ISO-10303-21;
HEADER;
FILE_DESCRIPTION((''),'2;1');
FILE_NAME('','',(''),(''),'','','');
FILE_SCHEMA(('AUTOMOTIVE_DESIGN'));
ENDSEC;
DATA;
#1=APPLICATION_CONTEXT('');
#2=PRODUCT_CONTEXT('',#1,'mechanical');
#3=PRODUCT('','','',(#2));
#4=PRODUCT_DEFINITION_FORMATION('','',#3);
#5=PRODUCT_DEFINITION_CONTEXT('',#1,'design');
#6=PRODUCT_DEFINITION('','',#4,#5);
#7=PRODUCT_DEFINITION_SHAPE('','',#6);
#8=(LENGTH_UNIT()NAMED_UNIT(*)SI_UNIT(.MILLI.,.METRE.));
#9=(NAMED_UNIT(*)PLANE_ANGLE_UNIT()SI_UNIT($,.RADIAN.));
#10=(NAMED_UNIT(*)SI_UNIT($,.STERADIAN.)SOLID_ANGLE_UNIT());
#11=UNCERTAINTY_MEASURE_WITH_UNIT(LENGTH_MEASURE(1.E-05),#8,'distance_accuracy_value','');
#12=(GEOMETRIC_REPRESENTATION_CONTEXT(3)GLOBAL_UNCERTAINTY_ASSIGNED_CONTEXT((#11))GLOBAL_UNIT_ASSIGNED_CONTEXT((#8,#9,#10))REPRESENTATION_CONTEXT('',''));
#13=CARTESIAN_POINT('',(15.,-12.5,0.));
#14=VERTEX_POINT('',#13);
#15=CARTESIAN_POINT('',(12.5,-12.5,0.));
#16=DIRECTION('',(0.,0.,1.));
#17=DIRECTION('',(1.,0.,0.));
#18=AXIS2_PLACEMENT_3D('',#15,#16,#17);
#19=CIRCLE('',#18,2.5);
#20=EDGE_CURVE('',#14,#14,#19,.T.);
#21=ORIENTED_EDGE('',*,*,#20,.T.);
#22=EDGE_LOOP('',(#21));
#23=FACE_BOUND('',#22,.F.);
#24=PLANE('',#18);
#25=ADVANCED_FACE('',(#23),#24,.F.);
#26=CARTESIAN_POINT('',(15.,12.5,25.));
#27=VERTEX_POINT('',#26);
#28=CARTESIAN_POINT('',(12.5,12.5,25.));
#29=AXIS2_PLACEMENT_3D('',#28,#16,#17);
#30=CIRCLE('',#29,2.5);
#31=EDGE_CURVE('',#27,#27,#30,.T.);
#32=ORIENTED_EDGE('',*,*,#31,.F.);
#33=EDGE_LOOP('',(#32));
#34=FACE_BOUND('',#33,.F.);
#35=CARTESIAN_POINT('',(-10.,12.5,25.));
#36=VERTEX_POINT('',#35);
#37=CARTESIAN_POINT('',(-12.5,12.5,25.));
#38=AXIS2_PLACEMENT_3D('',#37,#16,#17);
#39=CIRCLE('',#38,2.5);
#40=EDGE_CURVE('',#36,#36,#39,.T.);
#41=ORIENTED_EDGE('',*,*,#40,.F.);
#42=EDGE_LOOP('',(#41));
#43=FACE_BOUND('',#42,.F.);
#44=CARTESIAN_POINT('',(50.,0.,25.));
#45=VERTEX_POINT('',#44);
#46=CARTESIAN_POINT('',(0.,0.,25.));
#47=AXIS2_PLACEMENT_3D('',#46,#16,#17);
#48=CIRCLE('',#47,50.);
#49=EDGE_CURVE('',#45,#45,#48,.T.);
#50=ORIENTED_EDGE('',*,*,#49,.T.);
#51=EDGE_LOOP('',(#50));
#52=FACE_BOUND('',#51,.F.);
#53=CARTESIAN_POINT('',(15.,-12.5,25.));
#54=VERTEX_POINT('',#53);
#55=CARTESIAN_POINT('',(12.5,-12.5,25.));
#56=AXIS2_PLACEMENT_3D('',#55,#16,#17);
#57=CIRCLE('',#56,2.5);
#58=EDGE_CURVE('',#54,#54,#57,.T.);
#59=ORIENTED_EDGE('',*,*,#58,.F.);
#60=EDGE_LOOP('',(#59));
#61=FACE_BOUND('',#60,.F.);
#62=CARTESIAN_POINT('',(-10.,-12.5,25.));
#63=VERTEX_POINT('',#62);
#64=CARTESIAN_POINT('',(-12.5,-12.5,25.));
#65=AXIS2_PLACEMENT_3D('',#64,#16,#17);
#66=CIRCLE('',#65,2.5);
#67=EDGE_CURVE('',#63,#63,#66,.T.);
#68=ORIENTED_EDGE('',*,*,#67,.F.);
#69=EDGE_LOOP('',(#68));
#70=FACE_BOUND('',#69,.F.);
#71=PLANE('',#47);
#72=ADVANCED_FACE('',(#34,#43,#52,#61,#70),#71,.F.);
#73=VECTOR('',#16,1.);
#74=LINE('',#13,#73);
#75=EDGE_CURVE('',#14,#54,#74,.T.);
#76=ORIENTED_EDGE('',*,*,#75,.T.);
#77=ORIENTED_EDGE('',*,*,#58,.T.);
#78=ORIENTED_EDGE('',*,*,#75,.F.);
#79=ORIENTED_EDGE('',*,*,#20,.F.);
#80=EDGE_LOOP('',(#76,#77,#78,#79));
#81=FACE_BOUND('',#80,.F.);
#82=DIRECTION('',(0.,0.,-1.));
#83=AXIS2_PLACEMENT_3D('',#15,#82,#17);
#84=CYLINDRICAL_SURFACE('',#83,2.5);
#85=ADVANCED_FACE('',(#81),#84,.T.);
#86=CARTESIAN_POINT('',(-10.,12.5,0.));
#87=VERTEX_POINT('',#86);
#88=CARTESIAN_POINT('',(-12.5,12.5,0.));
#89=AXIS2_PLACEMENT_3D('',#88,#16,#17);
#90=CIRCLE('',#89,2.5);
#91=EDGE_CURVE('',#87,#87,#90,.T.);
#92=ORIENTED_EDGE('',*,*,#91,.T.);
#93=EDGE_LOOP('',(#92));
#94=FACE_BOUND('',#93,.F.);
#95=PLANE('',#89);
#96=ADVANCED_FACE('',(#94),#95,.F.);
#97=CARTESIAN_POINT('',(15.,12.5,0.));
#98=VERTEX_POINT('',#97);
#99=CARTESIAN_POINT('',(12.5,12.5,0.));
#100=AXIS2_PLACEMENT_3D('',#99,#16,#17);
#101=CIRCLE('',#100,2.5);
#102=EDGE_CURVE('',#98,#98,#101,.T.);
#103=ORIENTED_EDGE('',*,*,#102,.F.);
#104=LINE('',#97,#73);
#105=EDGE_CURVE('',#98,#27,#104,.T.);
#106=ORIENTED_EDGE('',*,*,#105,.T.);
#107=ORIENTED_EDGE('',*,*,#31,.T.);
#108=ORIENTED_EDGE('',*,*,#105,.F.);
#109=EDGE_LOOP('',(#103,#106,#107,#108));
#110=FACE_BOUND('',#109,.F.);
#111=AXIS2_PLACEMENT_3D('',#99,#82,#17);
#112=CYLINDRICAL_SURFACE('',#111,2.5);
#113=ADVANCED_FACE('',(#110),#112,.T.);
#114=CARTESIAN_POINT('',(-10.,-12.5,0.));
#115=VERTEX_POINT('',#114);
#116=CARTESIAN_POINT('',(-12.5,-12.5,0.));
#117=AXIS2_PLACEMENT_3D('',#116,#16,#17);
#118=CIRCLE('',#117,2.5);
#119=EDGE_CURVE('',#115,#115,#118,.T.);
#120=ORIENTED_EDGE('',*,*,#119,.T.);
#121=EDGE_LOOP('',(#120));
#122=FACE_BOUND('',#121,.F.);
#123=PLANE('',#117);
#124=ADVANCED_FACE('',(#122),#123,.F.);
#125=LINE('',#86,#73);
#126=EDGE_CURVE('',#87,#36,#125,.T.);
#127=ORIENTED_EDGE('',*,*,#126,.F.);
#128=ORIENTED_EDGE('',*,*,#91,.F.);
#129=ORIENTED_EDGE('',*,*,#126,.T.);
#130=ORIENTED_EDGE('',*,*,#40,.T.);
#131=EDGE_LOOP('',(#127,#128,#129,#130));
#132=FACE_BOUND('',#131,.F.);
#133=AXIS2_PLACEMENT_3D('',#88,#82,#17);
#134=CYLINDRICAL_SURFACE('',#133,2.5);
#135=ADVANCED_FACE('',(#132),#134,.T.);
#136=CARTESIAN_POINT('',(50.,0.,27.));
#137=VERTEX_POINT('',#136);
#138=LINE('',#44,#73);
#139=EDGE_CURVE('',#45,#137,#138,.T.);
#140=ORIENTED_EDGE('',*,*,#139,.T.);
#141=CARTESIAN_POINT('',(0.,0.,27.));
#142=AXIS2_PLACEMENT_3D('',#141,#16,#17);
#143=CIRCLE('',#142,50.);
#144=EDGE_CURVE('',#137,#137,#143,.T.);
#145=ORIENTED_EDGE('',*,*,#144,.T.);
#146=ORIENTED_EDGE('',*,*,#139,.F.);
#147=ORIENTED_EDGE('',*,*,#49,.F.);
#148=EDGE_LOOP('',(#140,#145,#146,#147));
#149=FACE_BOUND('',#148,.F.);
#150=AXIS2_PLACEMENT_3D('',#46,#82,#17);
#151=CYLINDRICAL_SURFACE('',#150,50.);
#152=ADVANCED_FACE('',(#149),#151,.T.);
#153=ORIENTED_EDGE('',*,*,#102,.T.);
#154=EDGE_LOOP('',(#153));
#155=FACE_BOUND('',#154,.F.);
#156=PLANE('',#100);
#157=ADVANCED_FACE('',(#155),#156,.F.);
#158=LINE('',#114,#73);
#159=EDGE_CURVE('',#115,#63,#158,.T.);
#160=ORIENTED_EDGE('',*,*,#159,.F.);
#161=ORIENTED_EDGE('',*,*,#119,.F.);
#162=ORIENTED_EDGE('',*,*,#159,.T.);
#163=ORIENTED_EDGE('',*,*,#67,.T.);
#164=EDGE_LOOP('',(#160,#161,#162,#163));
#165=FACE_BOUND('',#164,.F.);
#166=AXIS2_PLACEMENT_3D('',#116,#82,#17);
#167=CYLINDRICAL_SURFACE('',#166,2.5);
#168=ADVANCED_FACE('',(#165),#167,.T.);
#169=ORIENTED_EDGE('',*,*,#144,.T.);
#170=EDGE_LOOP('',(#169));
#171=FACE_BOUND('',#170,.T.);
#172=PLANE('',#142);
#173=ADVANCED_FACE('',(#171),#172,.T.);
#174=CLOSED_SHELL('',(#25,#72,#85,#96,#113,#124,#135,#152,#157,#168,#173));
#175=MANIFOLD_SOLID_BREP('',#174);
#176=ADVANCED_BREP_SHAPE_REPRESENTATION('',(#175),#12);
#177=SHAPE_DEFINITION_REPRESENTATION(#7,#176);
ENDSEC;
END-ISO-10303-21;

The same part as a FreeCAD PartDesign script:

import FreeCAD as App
import Part
import Sketcher
Q = App.Units.Quantity

doc = App.newDocument("Part")
params = doc.addObject("Spreadsheet::Sheet", "Params")
for row, (alias, value) in enumerate([
    ("sketch1_diameter", "5 mm"),
    ("pad1_length", "25 mm"),
    ("sketch2_diameter", "100 mm"),
    ("pad2_length", "2 mm"),
    ("sketch3_diameter", "100 mm"),
    ("sketch3_diameter2", "5 mm"),
    ("pad3_length", "25 mm"),
], start=1):
    params.set(f"A{row}", alias)
    params.set(f"B{row}", "=" + value)
    params.setAlias(f"B{row}", alias)

body = doc.addObject("PartDesign::Body", "Body")
body.AllowCompound = True

# Sketch on XY plane
sketch1 = body.newObject("Sketcher::SketchObject", "Sketch")
sketch1.AttachmentSupport = (doc.getObject("XY_Plane"), [""])
sketch1.MapMode = "FlatFace"
sketch1.addGeometry(Part.Circle(App.Vector(12.5, 12.5, 0), App.Vector(0, 0, 1), 2.5), False)
sketch1.addGeometry(Part.Circle(App.Vector(-12.5, -12.5, 0), App.Vector(0, 0, 1), 2.5), False)
sketch1.addGeometry(Part.Circle(App.Vector(12.5, -12.5, 0), App.Vector(0, 0, 1), 2.5), False)
sketch1.addGeometry(Part.Circle(App.Vector(-12.5, 12.5, 0), App.Vector(0, 0, 1), 2.5), False)
sketch1.addConstraint(Sketcher.Constraint("Equal", 0, 1))
sketch1.addConstraint(Sketcher.Constraint("Equal", 1, 2))
sketch1.addConstraint(Sketcher.Constraint("Equal", 2, 3))
sketch1.addConstraint(Sketcher.Constraint("Symmetric", 0, 3, 1, 3, -1, 1))
sketch1.addConstraint(Sketcher.Constraint("Symmetric", 2, 3, 3, 3, -1, 1))
sketch1.addConstraint(Sketcher.Constraint("Symmetric", 1, 3, 2, 3, -2))
sketch1.addConstraint(Sketcher.Constraint("Diameter", 0, Q("5 mm")))
sketch1.addConstraint(Sketcher.Constraint("DistanceX", 1, 3, 0, 3, Q("25 mm")))
sketch1.addConstraint(Sketcher.Constraint("DistanceY", 1, 3, 0, 3, Q("25 mm")))
sketch1.setExpression("Constraints[6]", "Params.sketch1_diameter")
pad1 = body.newObject("PartDesign::Pad", "Pad")
pad1.Profile = sketch1
pad1.setExpression("Length", "Params.pad1_length")

# Sketch on XY plane
sketch2 = body.newObject("Sketcher::SketchObject", "Sketch001")
sketch2.AttachmentSupport = (doc.getObject("XY_Plane"), [""])
sketch2.MapMode = "FlatFace"
sketch2.AttachmentOffset = App.Placement(App.Vector(0, 0, 25), App.Rotation())
sketch2.addGeometry(Part.Circle(App.Vector(0, 0, 0), App.Vector(0, 0, 1), 50), False)
sketch2.addConstraint(Sketcher.Constraint("Coincident", 0, 3, -1, 1))
sketch2.addConstraint(Sketcher.Constraint("Diameter", 0, Q("100 mm")))
sketch2.setExpression("Constraints[1]", "Params.sketch2_diameter")
pad2 = body.newObject("PartDesign::Pad", "Pad001")
pad2.Profile = sketch2
pad2.setExpression("Length", "Params.pad2_length")
body2 = doc.addObject("PartDesign::Body", "Body001")

# Sketch on XY plane
sketch3 = body2.newObject("Sketcher::SketchObject", "Sketch002")
sketch3.AttachmentSupport = (doc.getObject("XY_Plane001"), [""])
sketch3.MapMode = "FlatFace"
sketch3.AttachmentOffset = App.Placement(App.Vector(0, 0, 25), App.Rotation())
sketch3.addGeometry(Part.Circle(App.Vector(0, 0, 0), App.Vector(0, 0, 1), 50), False)
sketch3.addGeometry(Part.Circle(App.Vector(12.5, 12.5, 0), App.Vector(0, 0, 1), 2.5), False)
sketch3.addConstraint(Sketcher.Constraint("Coincident", 0, 3, -1, 1))
sketch3.addConstraint(Sketcher.Constraint("Diameter", 0, Q("100 mm")))
sketch3.addConstraint(Sketcher.Constraint("Diameter", 1, Q("5 mm")))
sketch3.addConstraint(Sketcher.Constraint("DistanceX", -1, 1, 1, 3, Q("12.5 mm")))
sketch3.addConstraint(Sketcher.Constraint("DistanceY", -1, 1, 1, 3, Q("12.5 mm")))
sketch3.setExpression("Constraints[1]", "Params.sketch3_diameter")
sketch3.setExpression("Constraints[2]", "Params.sketch3_diameter2")
pad3 = body2.newObject("PartDesign::Pad", "Pad002")
pad3.Profile = sketch3
pad3.setExpression("Length", "Params.pad3_length")
body2.Visibility = False

doc.recompute()
